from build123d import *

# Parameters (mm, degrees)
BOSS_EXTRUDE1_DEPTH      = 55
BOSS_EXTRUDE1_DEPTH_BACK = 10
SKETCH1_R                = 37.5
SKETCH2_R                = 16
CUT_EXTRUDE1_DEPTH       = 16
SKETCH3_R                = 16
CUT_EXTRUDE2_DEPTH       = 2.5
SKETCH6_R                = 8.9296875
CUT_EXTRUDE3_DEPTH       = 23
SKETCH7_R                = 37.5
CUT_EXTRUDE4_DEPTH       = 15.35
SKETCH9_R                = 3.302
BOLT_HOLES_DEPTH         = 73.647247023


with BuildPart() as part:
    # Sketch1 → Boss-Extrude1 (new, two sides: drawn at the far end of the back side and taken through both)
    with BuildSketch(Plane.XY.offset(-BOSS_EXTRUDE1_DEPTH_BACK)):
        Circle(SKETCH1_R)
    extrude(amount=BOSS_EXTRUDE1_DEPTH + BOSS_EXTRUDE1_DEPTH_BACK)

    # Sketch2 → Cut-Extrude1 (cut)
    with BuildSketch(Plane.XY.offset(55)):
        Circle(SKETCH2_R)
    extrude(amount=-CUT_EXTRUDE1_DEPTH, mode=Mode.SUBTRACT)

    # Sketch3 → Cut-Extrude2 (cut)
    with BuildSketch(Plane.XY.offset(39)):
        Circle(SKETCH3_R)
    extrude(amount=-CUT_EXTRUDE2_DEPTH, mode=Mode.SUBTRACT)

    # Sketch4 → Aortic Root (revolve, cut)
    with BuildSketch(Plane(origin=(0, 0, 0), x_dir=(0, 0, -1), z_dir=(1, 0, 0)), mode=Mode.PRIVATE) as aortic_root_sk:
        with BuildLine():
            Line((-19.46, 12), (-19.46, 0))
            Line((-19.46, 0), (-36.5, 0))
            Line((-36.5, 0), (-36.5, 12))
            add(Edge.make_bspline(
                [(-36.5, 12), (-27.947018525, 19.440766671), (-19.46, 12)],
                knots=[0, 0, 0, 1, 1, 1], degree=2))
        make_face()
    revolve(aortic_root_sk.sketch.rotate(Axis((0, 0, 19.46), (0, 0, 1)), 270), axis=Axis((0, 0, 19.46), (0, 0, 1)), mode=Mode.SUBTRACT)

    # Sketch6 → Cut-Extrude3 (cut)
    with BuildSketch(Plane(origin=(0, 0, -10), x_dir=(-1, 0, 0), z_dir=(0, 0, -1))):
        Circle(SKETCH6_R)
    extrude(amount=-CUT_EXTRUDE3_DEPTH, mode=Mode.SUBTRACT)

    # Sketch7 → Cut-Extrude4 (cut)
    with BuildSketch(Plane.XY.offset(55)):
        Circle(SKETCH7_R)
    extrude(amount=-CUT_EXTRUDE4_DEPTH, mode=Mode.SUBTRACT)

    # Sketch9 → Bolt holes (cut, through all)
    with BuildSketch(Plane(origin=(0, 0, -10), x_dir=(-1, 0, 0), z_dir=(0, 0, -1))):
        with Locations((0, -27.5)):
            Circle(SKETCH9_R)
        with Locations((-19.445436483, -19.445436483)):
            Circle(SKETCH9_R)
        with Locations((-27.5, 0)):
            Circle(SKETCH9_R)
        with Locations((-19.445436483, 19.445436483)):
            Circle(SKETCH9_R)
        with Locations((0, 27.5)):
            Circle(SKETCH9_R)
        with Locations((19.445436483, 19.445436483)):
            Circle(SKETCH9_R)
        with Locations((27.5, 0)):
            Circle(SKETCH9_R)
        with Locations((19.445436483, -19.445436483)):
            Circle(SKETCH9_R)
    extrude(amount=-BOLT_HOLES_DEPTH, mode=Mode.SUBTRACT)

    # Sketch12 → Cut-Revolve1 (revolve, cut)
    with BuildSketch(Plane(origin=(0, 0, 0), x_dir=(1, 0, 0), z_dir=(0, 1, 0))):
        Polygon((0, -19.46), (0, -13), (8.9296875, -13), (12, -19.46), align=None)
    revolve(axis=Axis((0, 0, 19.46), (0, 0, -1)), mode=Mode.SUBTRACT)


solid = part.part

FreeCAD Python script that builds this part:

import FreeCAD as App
import Part
import Sketcher

doc = App.newDocument("Part")
body = doc.addObject("PartDesign::Body", "Body")

# Sketch on XY plane
sketch1 = body.newObject("Sketcher::SketchObject", "Sketch")
sketch1.AttachmentSupport = (doc.getObject("XY_Plane"), [""])
sketch1.MapMode = "FlatFace"
sketch1.addGeometry(Part.Circle(App.Vector(0, 0, 0), App.Vector(0, 0, 1), 37.5), False)
sketch1.addConstraint([
    Sketcher.Constraint("Coincident", 0, 3, -1, 1),
    Sketcher.Constraint("Diameter", 0, 75.0),
])
pad1 = body.newObject("PartDesign::Pad", "Pad")
pad1.Profile = sketch1
pad1.Type = "TwoLengths"
pad1.Length = 55
pad1.Length2 = 10

# Sketch on XY plane
sketch2 = body.newObject("Sketcher::SketchObject", "Sketch001")
sketch2.AttachmentSupport = (doc.getObject("XY_Plane"), [""])
sketch2.MapMode = "FlatFace"
sketch2.AttachmentOffset = App.Placement(App.Vector(0, 0, 55), App.Rotation())
sketch2.addGeometry(Part.Circle(App.Vector(0, 0, 0), App.Vector(0, 0, 1), 16), False)
sketch2.addConstraint([
    Sketcher.Constraint("Coincident", 0, 3, -1, 1),
    Sketcher.Constraint("Diameter", 0, 32.0),
])
pocket1 = body.newObject("PartDesign::Pocket", "Pocket")
pocket1.Profile = sketch2
pocket1.Length = 16

# Sketch on XY plane
sketch3 = body.newObject("Sketcher::SketchObject", "Sketch002")
sketch3.AttachmentSupport = (doc.getObject("XY_Plane"), [""])
sketch3.MapMode = "FlatFace"
sketch3.AttachmentOffset = App.Placement(App.Vector(0, 0, 39), App.Rotation())
sketch3.addGeometry(Part.Circle(App.Vector(0, 0, 0), App.Vector(0, 0, 1), 16), False)
sketch3.addConstraint([
    Sketcher.Constraint("Coincident", 0, 3, -1, 1),
    Sketcher.Constraint("Diameter", 0, 32.0),
])
pocket2 = body.newObject("PartDesign::Pocket", "Pocket001")
pocket2.Profile = sketch3
pocket2.Length = 2.5

# Sketch on YZ plane
sketch4 = body.newObject("Sketcher::SketchObject", "Sketch003")
sketch4.AttachmentSupport = (doc.getObject("YZ_Plane"), [""])
sketch4.MapMode = "FlatFace"
sketch4.addGeometry([
    Part.LineSegment(App.Vector(0, 19.46, 0), App.Vector(12, 19.46, 0)),
    Part.BSplineCurve([App.Vector(12, 36.5, 0), App.Vector(19.440767, 27.947019, 0), App.Vector(12, 19.46, 0)], [3, 3], [0, 1], False, 2, [1, 1, 1], False),
    Part.LineSegment(App.Vector(12, 36.5, 0), App.Vector(0, 36.5, 0)),
    Part.LineSegment(App.Vector(0, 36.5, 0), App.Vector(0, 19.46, 0)),
], False)
sketch4.addConstraint([
    Sketcher.Constraint("Block", 1),
    Sketcher.Constraint("Coincident", 0, 2, 1, 2),
    Sketcher.Constraint("Coincident", 1, 1, 2, 1),
    Sketcher.Constraint("Coincident", 2, 2, 3, 1),
    Sketcher.Constraint("Coincident", 3, 2, 0, 1),
    Sketcher.Constraint("Horizontal", 0),
    Sketcher.Constraint("Horizontal", 2),
    Sketcher.Constraint("Vertical", 3),
    Sketcher.Constraint("PointOnObject", 2, 2, -2),
])
groove = body.newObject("PartDesign::Groove", "Groove")
groove.Profile = sketch4
groove.ReferenceAxis = (sketch4, ["V_Axis"])
groove.Angle = 360

# Sketch on XY plane
sketch5 = body.newObject("Sketcher::SketchObject", "Sketch004")
sketch5.AttachmentSupport = (doc.getObject("XY_Plane"), [""])
sketch5.MapMode = "FlatFace"
sketch5.AttachmentOffset = App.Placement(App.Vector(0, 0, -10), App.Rotation())
sketch5.addGeometry(Part.Circle(App.Vector(0, 0, 0), App.Vector(0, 0, 1), 8.929688), False)
sketch5.addConstraint([
    Sketcher.Constraint("Coincident", 0, 3, -1, 1),
    Sketcher.Constraint("Diameter", 0, 17.859375),
])
pocket3 = body.newObject("PartDesign::Pocket", "Pocket002")
pocket3.Profile = sketch5
pocket3.Length = 23
pocket3.Reversed = True

# Sketch on XY plane
sketch6 = body.newObject("Sketcher::SketchObject", "Sketch005")
sketch6.AttachmentSupport = (doc.getObject("XY_Plane"), [""])
sketch6.MapMode = "FlatFace"
sketch6.AttachmentOffset = App.Placement(App.Vector(0, 0, 55), App.Rotation())
sketch6.addGeometry(Part.Circle(App.Vector(0, 0, 0), App.Vector(0, 0, 1), 37.5), False)
sketch6.addConstraint([
    Sketcher.Constraint("Coincident", 0, 3, -1, 1),
    Sketcher.Constraint("Diameter", 0, 75.0),
])
pocket4 = body.newObject("PartDesign::Pocket", "Pocket003")
pocket4.Profile = sketch6
pocket4.Length = 15.35

# Sketch on XY plane
sketch7 = body.newObject("Sketcher::SketchObject", "Sketch006")
sketch7.AttachmentSupport = (doc.getObject("XY_Plane"), [""])
sketch7.MapMode = "FlatFace"
sketch7.AttachmentOffset = App.Placement(App.Vector(0, 0, -10), App.Rotation())
sketch7.addGeometry([
    Part.Circle(App.Vector(0, -27.5, 0), App.Vector(0, 0, 1), 3.302),  # 0
    Part.Circle(App.Vector(19.445436, -19.445436, 0), App.Vector(0, 0, 1), 3.302),  # 1
    Part.Circle(App.Vector(27.5, 0, 0), App.Vector(0, 0, 1), 3.302),  # 2
    Part.Circle(App.Vector(19.445436, 19.445436, 0), App.Vector(0, 0, 1), 3.302),  # 3
    Part.Circle(App.Vector(0, 27.5, 0), App.Vector(0, 0, 1), 3.302),  # 4
    Part.Circle(App.Vector(-19.445436, 19.445436, 0), App.Vector(0, 0, 1), 3.302),  # 5
    Part.Circle(App.Vector(-27.5, 0, 0), App.Vector(0, 0, 1), 3.302),  # 6
    Part.Circle(App.Vector(-19.445436, -19.445436, 0), App.Vector(0, 0, 1), 3.302),  # 7
], False)
sketch7.addConstraint([
    Sketcher.Constraint("Equal", 0, 1),
    Sketcher.Constraint("Equal", 1, 2),
    Sketcher.Constraint("Equal", 2, 3),
    Sketcher.Constraint("Equal", 3, 4),
    Sketcher.Constraint("Equal", 4, 5),
    Sketcher.Constraint("Equal", 5, 6),
    Sketcher.Constraint("Equal", 6, 7),
    Sketcher.Constraint("Symmetric", 0, 3, 4, 3, -1, 1),
    Sketcher.Constraint("Symmetric", 1, 3, 5, 3, -1, 1),
    Sketcher.Constraint("Symmetric", 2, 3, 6, 3, -1, 1),
    Sketcher.Constraint("Symmetric", 3, 3, 7, 3, -1, 1),
    Sketcher.Constraint("Symmetric", 3, 3, 5, 3, -2),
    Sketcher.Constraint("PointOnObject", 0, 3, -2),
    Sketcher.Constraint("PointOnObject", 2, 3, -1),
    Sketcher.Constraint("Diameter", 0, 6.604),
    Sketcher.Constraint("DistanceY", 0, 3, 4, 3, 55.0),
    Sketcher.Constraint("DistanceX", -1, 1, 2, 3, 27.5),
    Sketcher.Constraint("DistanceX", -1, 1, 1, 3, 19.445436),
    Sketcher.Constraint("DistanceY", 1, 3, -1, 1, 19.445436),
])
pocket5 = body.newObject("PartDesign::Pocket", "Pocket004")
pocket5.Profile = sketch7
pocket5.Type = "ThroughAll"
pocket5.Reversed = True

# Sketch on XZ plane
sketch8 = body.newObject("Sketcher::SketchObject", "Sketch007")
sketch8.AttachmentSupport = (doc.getObject("XZ_Plane"), [""])
sketch8.MapMode = "FlatFace"
sketch8.addGeometry([
    Part.LineSegment(App.Vector(0, 13, 0), App.Vector(0, 19.46, 0)),
    Part.LineSegment(App.Vector(0, 19.46, 0), App.Vector(12, 19.46, 0)),
    Part.LineSegment(App.Vector(12, 19.46, 0), App.Vector(8.929688, 13, 0)),
    Part.LineSegment(App.Vector(8.929688, 13, 0), App.Vector(0, 13, 0)),
], False)
sketch8.addConstraint([
    Sketcher.Constraint("Coincident", 0, 2, 1, 1),
    Sketcher.Constraint("Coincident", 1, 2, 2, 1),
    Sketcher.Constraint("Coincident", 2, 2, 3, 1),
    Sketcher.Constraint("Coincident", 3, 2, 0, 1),
    Sketcher.Constraint("Vertical", 0),
    Sketcher.Constraint("Horizontal", 1),
    Sketcher.Constraint("Horizontal", 3),
    Sketcher.Constraint("PointOnObject", 0, 2, -2),
    Sketcher.Constraint("DistanceX", 1, 1, 1, 2, 12.0),
    Sketcher.Constraint("DistanceY", -1, 1, 2, 2, 13.0),
    Sketcher.Constraint("DistanceY", 0, 1, 0, 2, 6.46),
    Sketcher.Constraint("Distance", 2, 7.152511),
])
groove2 = body.newObject("PartDesign::Groove", "Groove001")
groove2.Profile = sketch8
groove2.ReferenceAxis = (sketch8, ["V_Axis"])
groove2.Angle = 360

doc.recompute()
